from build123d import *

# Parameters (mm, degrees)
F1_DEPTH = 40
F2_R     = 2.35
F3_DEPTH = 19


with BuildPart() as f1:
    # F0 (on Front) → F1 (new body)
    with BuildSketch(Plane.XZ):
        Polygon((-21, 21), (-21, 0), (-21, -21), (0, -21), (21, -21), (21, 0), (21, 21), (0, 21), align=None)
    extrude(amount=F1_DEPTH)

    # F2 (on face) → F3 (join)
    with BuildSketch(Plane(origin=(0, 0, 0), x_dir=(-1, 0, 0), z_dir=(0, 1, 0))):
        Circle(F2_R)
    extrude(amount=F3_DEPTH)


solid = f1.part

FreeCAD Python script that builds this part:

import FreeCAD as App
import Part
import Sketcher

V = App.Vector


def add_polygon(sketch, points):
    """Adds a closed chain of lines whose ends are joined by coincident constraints."""
    first, n = sketch.GeometryCount, len(points)
    for a, b in zip(points, points[1:] + points[:1]):
        sketch.addGeometry(Part.LineSegment(App.Vector(*a, 0), App.Vector(*b, 0)), False)
    for i in range(n):
        sketch.addConstraint(Sketcher.Constraint("Coincident", first + i, 2, first + (i + 1) % n, 1))

doc = App.newDocument("Part")
body = doc.addObject("PartDesign::Body", "Body")

# Sketch on XZ plane
sketch1 = body.newObject("Sketcher::SketchObject", "Sketch")
sketch1.AttachmentSupport = (doc.getObject("XZ_Plane"), [""])
sketch1.MapMode = "FlatFace"
add_polygon(sketch1, [(-21, 21), (-21, -21), (21, -21), (21, 21)])  # lines 0-3
sketch1.addConstraint([
    Sketcher.Constraint("Vertical", 0),
    Sketcher.Constraint("Horizontal", 1),
    Sketcher.Constraint("Vertical", 2),
    Sketcher.Constraint("Horizontal", 3),
    Sketcher.Constraint("Symmetric", 0, 2, 2, 2, -1, 1),
    Sketcher.Constraint("Equal", 3, 0),
    Sketcher.Constraint("DistanceX", 1, 1, 1, 2, 42.0),
])
pad1 = body.newObject("PartDesign::Pad", "Pad")
pad1.Profile = sketch1
pad1.Length = 40

# Sketch on XZ plane
sketch2 = body.newObject("Sketcher::SketchObject", "Sketch001")
sketch2.AttachmentSupport = (doc.getObject("XZ_Plane"), [""])
sketch2.MapMode = "FlatFace"
sketch2.addGeometry(Part.Circle(V(0, 0, 0), V(0, 0, 1), 2.4), False)
sketch2.addConstraint([
    Sketcher.Constraint("Coincident", 0, 3, -1, 1),
    Sketcher.Constraint("Diameter", 0, 4.7),
])
pad2 = body.newObject("PartDesign::Pad", "Pad001")
pad2.Profile = sketch2
pad2.Length = 19
pad2.Reversed = True

doc.recompute()
